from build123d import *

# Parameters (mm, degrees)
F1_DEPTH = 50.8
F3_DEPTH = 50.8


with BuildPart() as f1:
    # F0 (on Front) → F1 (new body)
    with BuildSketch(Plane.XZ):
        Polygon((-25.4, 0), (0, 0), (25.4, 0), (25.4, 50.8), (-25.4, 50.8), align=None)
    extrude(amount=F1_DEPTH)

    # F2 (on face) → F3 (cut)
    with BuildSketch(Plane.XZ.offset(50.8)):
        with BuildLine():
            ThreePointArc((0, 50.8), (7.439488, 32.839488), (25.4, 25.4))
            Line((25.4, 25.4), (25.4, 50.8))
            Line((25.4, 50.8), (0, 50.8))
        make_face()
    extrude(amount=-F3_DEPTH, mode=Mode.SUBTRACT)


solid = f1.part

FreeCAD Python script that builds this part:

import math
import FreeCAD as App
import Part
import Sketcher
from FreeCAD import Vector
Q = App.Units.Quantity


def add_polygon(sketch, points):
    """Adds a closed chain of lines whose ends are joined by coincident constraints."""
    first, n = sketch.GeometryCount, len(points)
    for a, b in zip(points, points[1:] + points[:1]):
        sketch.addGeometry(Part.LineSegment(App.Vector(*a, 0), App.Vector(*b, 0)), False)
    for i in range(n):
        sketch.addConstraint(Sketcher.Constraint("Coincident", first + i, 2, first + (i + 1) % n, 1))

doc = App.newDocument("Part")
body = doc.addObject("PartDesign::Body", "Body")

# Sketch on XZ plane
sketch1 = body.newObject("Sketcher::SketchObject", "Sketch")
sketch1.AttachmentSupport = (doc.getObject("XZ_Plane"), [""])
sketch1.MapMode = "FlatFace"
add_polygon(sketch1, [(-25.4, 0), (25.4, 0), (25.4, 50.8), (-25.4, 50.8)])  # lines 0-3
sketch1.addConstraint([
    Sketcher.Constraint("Horizontal", 0),
    Sketcher.Constraint("Vertical", 1),
    Sketcher.Constraint("Horizontal", 2),
    Sketcher.Constraint("Vertical", 3),
    Sketcher.Constraint("Symmetric", 0, 2, 3, 2, -1, 1),
    Sketcher.Constraint("Equal", 2, 1),
    Sketcher.Constraint("DistanceX", 0, 1, 0, 2, Q("2 in")),
])
pad1 = body.newObject("PartDesign::Pad", "Pad")
pad1.Profile = sketch1
pad1.Length = Q("2 in")

# Sketch on XZ plane
sketch2 = body.newObject("Sketcher::SketchObject", "Sketch001")
sketch2.AttachmentSupport = (doc.getObject("XZ_Plane"), [""])
sketch2.MapMode = "FlatFace"
sketch2.AttachmentOffset = App.Placement(Vector(0, 0, 2 * 25.4), App.Rotation())
sketch2.addGeometry([
    Part.ArcOfCircle(Part.Circle(Vector(25.400001, 50.800001, 0), Vector(0, 0, 1), 25.400001), math.radians(-179.999998), math.radians(-90.000002)),
    Part.LineSegment(Vector(25.4, 25.4, 0), Vector(25.4, 50.8, 0)),
    Part.LineSegment(Vector(25.4, 50.8, 0), Vector(0, 50.8, 0)),
], False)
sketch2.addConstraint([
    Sketcher.Constraint("Coincident", 0, 2, 1, 1),
    Sketcher.Constraint("Coincident", 1, 2, 2, 1),
    Sketcher.Constraint("Coincident", 2, 2, 0, 1),
    Sketcher.Constraint("Vertical", 1),
    Sketcher.Constraint("Horizontal", 2),
    Sketcher.Constraint("Coincident", 1, 2, 0, 3),
    Sketcher.Constraint("PointOnObject", 2, 2, -2),
    Sketcher.Constraint("Radius", 0, Q("1 in")),
    Sketcher.Constraint("DistanceY", -1, 1, 0, 3, Q("2 in")),
])
pocket1 = body.newObject("PartDesign::Pocket", "Pocket")
pocket1.Profile = sketch2
pocket1.Length = Q("2 in")

doc.recompute()
